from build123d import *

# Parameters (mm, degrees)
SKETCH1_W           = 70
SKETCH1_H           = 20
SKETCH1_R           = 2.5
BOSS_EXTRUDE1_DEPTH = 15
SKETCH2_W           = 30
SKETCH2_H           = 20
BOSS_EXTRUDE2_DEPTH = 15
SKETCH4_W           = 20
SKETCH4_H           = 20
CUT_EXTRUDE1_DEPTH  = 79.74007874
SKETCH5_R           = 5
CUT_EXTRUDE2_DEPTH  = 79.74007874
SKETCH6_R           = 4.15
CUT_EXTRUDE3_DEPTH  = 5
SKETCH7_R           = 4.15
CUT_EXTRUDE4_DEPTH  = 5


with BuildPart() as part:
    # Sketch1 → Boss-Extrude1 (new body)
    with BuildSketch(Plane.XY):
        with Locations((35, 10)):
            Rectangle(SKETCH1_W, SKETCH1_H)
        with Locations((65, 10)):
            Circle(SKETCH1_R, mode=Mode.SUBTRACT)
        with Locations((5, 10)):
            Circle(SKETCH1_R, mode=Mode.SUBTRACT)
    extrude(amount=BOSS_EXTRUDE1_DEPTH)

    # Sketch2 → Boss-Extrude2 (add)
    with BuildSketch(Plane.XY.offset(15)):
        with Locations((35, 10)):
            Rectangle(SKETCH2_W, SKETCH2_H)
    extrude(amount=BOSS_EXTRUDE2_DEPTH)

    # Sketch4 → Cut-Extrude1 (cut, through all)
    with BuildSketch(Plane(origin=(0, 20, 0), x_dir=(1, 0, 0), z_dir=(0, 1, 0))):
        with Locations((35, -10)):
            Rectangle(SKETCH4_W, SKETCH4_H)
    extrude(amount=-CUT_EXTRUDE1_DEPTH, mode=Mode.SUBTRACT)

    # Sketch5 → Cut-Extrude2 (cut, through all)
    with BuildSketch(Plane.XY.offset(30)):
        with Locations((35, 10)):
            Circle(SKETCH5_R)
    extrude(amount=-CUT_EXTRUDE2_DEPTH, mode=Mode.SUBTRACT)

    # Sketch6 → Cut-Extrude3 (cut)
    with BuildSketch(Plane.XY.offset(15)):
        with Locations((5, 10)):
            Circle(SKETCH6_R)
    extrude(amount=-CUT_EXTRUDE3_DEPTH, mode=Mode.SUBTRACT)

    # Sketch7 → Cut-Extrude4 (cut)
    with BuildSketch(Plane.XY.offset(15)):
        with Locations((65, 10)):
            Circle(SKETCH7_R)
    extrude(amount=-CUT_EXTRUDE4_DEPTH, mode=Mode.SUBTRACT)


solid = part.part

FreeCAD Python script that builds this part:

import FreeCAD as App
import Part
import Sketcher
from FreeCAD import Vector
Q = App.Units.Quantity

doc = App.newDocument("Part")
body = doc.addObject("PartDesign::Body", "Body")

# Sketch on XY plane
sketch1 = doc.addObject("Sketcher::SketchObject", "Sketch")
body.addObject(sketch1)
sketch1.AttachmentSupport = (doc.XY_Plane, [""])
sketch1.MapMode = "FlatFace"
sketch1.addGeometry([
    Part.LineSegment(Vector(0, 20, 0), Vector(0, 0, 0)),  # 0
    Part.LineSegment(Vector(0, 0, 0), Vector(70, 0, 0)),  # 1
    Part.LineSegment(Vector(70, 0, 0), Vector(70, 20, 0)),  # 2
    Part.LineSegment(Vector(70, 20, 0), Vector(0, 20, 0)),  # 3
    Part.Circle(Vector(5, 10, 0), Vector(0, 0, 1), 2.5),  # 4
    Part.Circle(Vector(65, 10, 0), Vector(0, 0, 1), 2.5),  # 5
], False)
sketch1.addConstraint([
    Sketcher.Constraint("Coincident", 0, 2, 1, 1),
    Sketcher.Constraint("Coincident", 1, 2, 2, 1),
    Sketcher.Constraint("Coincident", 2, 2, 3, 1),
    Sketcher.Constraint("Coincident", 3, 2, 0, 1),
    Sketcher.Constraint("Vertical", 0),
    Sketcher.Constraint("Horizontal", 1),
    Sketcher.Constraint("Vertical", 2),
    Sketcher.Constraint("Horizontal", 3),
    Sketcher.Constraint("Coincident", 0, 2, -1, 1),
    Sketcher.Constraint("Equal", 4, 5),
    Sketcher.Constraint("Horizontal", 4, 3, 5, 3),
    Sketcher.Constraint("Diameter", 4, Q("5 mm")),
    Sketcher.Constraint("DistanceX", 1, 1, 1, 2, Q("70 mm")),
    Sketcher.Constraint("DistanceY", 0, 2, 0, 1, Q("20 mm")),
    Sketcher.Constraint("DistanceX", -1, 1, 4, 3, Q("5 mm")),
    Sketcher.Constraint("DistanceY", -1, 1, 4, 3, Q("10 mm")),
    Sketcher.Constraint("DistanceX", -1, 1, 5, 3, Q("65 mm")),
])
pad1 = doc.addObject("PartDesign::Pad", "Pad")
body.addObject(pad1)
pad1.Profile = sketch1
pad1.Length = 15

# Sketch on XY plane
sketch2 = doc.addObject("Sketcher::SketchObject", "Sketch001")
body.addObject(sketch2)
sketch2.AttachmentSupport = (doc.XY_Plane, [""])
sketch2.MapMode = "FlatFace"
sketch2.AttachmentOffset = App.Placement(Vector(0, 0, 15), App.Rotation())
sketch2.addGeometry([
    Part.LineSegment(Vector(20, 20, 0), Vector(20, 0, 0)),
    Part.LineSegment(Vector(20, 0, 0), Vector(50, 0, 0)),
    Part.LineSegment(Vector(50, 0, 0), Vector(50, 20, 0)),
    Part.LineSegment(Vector(50, 20, 0), Vector(20, 20, 0)),
], False)
sketch2.addConstraint([
    Sketcher.Constraint("Coincident", 0, 2, 1, 1),
    Sketcher.Constraint("Coincident", 1, 2, 2, 1),
    Sketcher.Constraint("Coincident", 2, 2, 3, 1),
    Sketcher.Constraint("Coincident", 3, 2, 0, 1),
    Sketcher.Constraint("Vertical", 0),
    Sketcher.Constraint("Horizontal", 1),
    Sketcher.Constraint("Vertical", 2),
    Sketcher.Constraint("Horizontal", 3),
    Sketcher.Constraint("PointOnObject", 0, 2, -1),
    Sketcher.Constraint("DistanceX", 1, 1, 1, 2, Q("30 mm")),
    Sketcher.Constraint("DistanceY", 0, 2, 0, 1, Q("20 mm")),
    Sketcher.Constraint("DistanceX", -1, 1, 0, 2, Q("20 mm")),
])
pad2 = doc.addObject("PartDesign::Pad", "Pad001")
body.addObject(pad2)
pad2.Profile = sketch2
pad2.Length = 15

# Sketch on XZ plane
sketch3 = doc.addObject("Sketcher::SketchObject", "Sketch002")
body.addObject(sketch3)
sketch3.AttachmentSupport = (doc.XZ_Plane, [""])
sketch3.MapMode = "FlatFace"
sketch3.AttachmentOffset = App.Placement(Vector(0, 0, -20), App.Rotation())
sketch3.addGeometry([
    Part.LineSegment(Vector(25, 0, 0), Vector(25, 20, 0)),
    Part.LineSegment(Vector(25, 20, 0), Vector(45, 20, 0)),
    Part.LineSegment(Vector(45, 20, 0), Vector(45, 0, 0)),
    Part.LineSegment(Vector(45, 0, 0), Vector(25, 0, 0)),
], False)
sketch3.addConstraint([
    Sketcher.Constraint("Coincident", 0, 2, 1, 1),
    Sketcher.Constraint("Coincident", 1, 2, 2, 1),
    Sketcher.Constraint("Coincident", 2, 2, 3, 1),
    Sketcher.Constraint("Coincident", 3, 2, 0, 1),
    Sketcher.Constraint("Vertical", 0),
    Sketcher.Constraint("Horizontal", 1),
    Sketcher.Constraint("Vertical", 2),
    Sketcher.Constraint("Horizontal", 3),
    Sketcher.Constraint("PointOnObject", 2, 2, -1),
    Sketcher.Constraint("Equal", 3, 0),
    Sketcher.Constraint("DistanceX", 1, 1, 1, 2, Q("20 mm")),
    Sketcher.Constraint("DistanceX", -1, 1, 0, 2, Q("25 mm")),
])
pocket1 = doc.addObject("PartDesign::Pocket", "Pocket")
body.addObject(pocket1)
pocket1.Profile = sketch3
pocket1.Type = "ThroughAll"
pocket1.Reversed = True

# Sketch on XY plane
sketch4 = doc.addObject("Sketcher::SketchObject", "Sketch003")
body.addObject(sketch4)
sketch4.AttachmentSupport = (doc.XY_Plane, [""])
sketch4.MapMode = "FlatFace"
sketch4.AttachmentOffset = App.Placement(Vector(0, 0, 30), App.Rotation())
sketch4.addGeometry(Part.Circle(Vector(35, 10, 0), Vector(0, 0, 1), 5), False)
sketch4.addConstraint([
    Sketcher.Constraint("Diameter", 0, Q("10 mm")),
    Sketcher.Constraint("DistanceX", -1, 1, 0, 3, Q("35 mm")),
    Sketcher.Constraint("DistanceY", -1, 1, 0, 3, Q("10 mm")),
])
pocket2 = doc.addObject("PartDesign::Pocket", "Pocket001")
body.addObject(pocket2)
pocket2.Profile = sketch4
pocket2.Type = "ThroughAll"

# Sketch on XY plane
sketch5 = doc.addObject("Sketcher::SketchObject", "Sketch004")
body.addObject(sketch5)
sketch5.AttachmentSupport = (doc.XY_Plane, [""])
sketch5.MapMode = "FlatFace"
sketch5.AttachmentOffset = App.Placement(Vector(0, 0, 15), App.Rotation())
sketch5.addGeometry(Part.Circle(Vector(5, 10, 0), Vector(0, 0, 1), 4.2), False)
sketch5.addConstraint([
    Sketcher.Constraint("Diameter", 0, Q("8.3 mm")),
    Sketcher.Constraint("DistanceX", -1, 1, 0, 3, Q("5 mm")),
    Sketcher.Constraint("DistanceY", -1, 1, 0, 3, Q("10 mm")),
])
pocket3 = doc.addObject("PartDesign::Pocket", "Pocket002")
body.addObject(pocket3)
pocket3.Profile = sketch5
pocket3.Length = 5

# Sketch on XY plane
sketch6 = doc.addObject("Sketcher::SketchObject", "Sketch005")
body.addObject(sketch6)
sketch6.AttachmentSupport = (doc.XY_Plane, [""])
sketch6.MapMode = "FlatFace"
sketch6.AttachmentOffset = App.Placement(Vector(0, 0, 15), App.Rotation())
sketch6.addGeometry(Part.Circle(Vector(65, 10, 0), Vector(0, 0, 1), 4.2), False)
sketch6.addConstraint([
    Sketcher.Constraint("Diameter", 0, Q("8.3 mm")),
    Sketcher.Constraint("DistanceX", -1, 1, 0, 3, Q("65 mm")),
    Sketcher.Constraint("DistanceY", -1, 1, 0, 3, Q("10 mm")),
])
pocket4 = doc.addObject("PartDesign::Pocket", "Pocket003")
body.addObject(pocket4)
pocket4.Profile = sketch6
pocket4.Length = 5

doc.recompute()
